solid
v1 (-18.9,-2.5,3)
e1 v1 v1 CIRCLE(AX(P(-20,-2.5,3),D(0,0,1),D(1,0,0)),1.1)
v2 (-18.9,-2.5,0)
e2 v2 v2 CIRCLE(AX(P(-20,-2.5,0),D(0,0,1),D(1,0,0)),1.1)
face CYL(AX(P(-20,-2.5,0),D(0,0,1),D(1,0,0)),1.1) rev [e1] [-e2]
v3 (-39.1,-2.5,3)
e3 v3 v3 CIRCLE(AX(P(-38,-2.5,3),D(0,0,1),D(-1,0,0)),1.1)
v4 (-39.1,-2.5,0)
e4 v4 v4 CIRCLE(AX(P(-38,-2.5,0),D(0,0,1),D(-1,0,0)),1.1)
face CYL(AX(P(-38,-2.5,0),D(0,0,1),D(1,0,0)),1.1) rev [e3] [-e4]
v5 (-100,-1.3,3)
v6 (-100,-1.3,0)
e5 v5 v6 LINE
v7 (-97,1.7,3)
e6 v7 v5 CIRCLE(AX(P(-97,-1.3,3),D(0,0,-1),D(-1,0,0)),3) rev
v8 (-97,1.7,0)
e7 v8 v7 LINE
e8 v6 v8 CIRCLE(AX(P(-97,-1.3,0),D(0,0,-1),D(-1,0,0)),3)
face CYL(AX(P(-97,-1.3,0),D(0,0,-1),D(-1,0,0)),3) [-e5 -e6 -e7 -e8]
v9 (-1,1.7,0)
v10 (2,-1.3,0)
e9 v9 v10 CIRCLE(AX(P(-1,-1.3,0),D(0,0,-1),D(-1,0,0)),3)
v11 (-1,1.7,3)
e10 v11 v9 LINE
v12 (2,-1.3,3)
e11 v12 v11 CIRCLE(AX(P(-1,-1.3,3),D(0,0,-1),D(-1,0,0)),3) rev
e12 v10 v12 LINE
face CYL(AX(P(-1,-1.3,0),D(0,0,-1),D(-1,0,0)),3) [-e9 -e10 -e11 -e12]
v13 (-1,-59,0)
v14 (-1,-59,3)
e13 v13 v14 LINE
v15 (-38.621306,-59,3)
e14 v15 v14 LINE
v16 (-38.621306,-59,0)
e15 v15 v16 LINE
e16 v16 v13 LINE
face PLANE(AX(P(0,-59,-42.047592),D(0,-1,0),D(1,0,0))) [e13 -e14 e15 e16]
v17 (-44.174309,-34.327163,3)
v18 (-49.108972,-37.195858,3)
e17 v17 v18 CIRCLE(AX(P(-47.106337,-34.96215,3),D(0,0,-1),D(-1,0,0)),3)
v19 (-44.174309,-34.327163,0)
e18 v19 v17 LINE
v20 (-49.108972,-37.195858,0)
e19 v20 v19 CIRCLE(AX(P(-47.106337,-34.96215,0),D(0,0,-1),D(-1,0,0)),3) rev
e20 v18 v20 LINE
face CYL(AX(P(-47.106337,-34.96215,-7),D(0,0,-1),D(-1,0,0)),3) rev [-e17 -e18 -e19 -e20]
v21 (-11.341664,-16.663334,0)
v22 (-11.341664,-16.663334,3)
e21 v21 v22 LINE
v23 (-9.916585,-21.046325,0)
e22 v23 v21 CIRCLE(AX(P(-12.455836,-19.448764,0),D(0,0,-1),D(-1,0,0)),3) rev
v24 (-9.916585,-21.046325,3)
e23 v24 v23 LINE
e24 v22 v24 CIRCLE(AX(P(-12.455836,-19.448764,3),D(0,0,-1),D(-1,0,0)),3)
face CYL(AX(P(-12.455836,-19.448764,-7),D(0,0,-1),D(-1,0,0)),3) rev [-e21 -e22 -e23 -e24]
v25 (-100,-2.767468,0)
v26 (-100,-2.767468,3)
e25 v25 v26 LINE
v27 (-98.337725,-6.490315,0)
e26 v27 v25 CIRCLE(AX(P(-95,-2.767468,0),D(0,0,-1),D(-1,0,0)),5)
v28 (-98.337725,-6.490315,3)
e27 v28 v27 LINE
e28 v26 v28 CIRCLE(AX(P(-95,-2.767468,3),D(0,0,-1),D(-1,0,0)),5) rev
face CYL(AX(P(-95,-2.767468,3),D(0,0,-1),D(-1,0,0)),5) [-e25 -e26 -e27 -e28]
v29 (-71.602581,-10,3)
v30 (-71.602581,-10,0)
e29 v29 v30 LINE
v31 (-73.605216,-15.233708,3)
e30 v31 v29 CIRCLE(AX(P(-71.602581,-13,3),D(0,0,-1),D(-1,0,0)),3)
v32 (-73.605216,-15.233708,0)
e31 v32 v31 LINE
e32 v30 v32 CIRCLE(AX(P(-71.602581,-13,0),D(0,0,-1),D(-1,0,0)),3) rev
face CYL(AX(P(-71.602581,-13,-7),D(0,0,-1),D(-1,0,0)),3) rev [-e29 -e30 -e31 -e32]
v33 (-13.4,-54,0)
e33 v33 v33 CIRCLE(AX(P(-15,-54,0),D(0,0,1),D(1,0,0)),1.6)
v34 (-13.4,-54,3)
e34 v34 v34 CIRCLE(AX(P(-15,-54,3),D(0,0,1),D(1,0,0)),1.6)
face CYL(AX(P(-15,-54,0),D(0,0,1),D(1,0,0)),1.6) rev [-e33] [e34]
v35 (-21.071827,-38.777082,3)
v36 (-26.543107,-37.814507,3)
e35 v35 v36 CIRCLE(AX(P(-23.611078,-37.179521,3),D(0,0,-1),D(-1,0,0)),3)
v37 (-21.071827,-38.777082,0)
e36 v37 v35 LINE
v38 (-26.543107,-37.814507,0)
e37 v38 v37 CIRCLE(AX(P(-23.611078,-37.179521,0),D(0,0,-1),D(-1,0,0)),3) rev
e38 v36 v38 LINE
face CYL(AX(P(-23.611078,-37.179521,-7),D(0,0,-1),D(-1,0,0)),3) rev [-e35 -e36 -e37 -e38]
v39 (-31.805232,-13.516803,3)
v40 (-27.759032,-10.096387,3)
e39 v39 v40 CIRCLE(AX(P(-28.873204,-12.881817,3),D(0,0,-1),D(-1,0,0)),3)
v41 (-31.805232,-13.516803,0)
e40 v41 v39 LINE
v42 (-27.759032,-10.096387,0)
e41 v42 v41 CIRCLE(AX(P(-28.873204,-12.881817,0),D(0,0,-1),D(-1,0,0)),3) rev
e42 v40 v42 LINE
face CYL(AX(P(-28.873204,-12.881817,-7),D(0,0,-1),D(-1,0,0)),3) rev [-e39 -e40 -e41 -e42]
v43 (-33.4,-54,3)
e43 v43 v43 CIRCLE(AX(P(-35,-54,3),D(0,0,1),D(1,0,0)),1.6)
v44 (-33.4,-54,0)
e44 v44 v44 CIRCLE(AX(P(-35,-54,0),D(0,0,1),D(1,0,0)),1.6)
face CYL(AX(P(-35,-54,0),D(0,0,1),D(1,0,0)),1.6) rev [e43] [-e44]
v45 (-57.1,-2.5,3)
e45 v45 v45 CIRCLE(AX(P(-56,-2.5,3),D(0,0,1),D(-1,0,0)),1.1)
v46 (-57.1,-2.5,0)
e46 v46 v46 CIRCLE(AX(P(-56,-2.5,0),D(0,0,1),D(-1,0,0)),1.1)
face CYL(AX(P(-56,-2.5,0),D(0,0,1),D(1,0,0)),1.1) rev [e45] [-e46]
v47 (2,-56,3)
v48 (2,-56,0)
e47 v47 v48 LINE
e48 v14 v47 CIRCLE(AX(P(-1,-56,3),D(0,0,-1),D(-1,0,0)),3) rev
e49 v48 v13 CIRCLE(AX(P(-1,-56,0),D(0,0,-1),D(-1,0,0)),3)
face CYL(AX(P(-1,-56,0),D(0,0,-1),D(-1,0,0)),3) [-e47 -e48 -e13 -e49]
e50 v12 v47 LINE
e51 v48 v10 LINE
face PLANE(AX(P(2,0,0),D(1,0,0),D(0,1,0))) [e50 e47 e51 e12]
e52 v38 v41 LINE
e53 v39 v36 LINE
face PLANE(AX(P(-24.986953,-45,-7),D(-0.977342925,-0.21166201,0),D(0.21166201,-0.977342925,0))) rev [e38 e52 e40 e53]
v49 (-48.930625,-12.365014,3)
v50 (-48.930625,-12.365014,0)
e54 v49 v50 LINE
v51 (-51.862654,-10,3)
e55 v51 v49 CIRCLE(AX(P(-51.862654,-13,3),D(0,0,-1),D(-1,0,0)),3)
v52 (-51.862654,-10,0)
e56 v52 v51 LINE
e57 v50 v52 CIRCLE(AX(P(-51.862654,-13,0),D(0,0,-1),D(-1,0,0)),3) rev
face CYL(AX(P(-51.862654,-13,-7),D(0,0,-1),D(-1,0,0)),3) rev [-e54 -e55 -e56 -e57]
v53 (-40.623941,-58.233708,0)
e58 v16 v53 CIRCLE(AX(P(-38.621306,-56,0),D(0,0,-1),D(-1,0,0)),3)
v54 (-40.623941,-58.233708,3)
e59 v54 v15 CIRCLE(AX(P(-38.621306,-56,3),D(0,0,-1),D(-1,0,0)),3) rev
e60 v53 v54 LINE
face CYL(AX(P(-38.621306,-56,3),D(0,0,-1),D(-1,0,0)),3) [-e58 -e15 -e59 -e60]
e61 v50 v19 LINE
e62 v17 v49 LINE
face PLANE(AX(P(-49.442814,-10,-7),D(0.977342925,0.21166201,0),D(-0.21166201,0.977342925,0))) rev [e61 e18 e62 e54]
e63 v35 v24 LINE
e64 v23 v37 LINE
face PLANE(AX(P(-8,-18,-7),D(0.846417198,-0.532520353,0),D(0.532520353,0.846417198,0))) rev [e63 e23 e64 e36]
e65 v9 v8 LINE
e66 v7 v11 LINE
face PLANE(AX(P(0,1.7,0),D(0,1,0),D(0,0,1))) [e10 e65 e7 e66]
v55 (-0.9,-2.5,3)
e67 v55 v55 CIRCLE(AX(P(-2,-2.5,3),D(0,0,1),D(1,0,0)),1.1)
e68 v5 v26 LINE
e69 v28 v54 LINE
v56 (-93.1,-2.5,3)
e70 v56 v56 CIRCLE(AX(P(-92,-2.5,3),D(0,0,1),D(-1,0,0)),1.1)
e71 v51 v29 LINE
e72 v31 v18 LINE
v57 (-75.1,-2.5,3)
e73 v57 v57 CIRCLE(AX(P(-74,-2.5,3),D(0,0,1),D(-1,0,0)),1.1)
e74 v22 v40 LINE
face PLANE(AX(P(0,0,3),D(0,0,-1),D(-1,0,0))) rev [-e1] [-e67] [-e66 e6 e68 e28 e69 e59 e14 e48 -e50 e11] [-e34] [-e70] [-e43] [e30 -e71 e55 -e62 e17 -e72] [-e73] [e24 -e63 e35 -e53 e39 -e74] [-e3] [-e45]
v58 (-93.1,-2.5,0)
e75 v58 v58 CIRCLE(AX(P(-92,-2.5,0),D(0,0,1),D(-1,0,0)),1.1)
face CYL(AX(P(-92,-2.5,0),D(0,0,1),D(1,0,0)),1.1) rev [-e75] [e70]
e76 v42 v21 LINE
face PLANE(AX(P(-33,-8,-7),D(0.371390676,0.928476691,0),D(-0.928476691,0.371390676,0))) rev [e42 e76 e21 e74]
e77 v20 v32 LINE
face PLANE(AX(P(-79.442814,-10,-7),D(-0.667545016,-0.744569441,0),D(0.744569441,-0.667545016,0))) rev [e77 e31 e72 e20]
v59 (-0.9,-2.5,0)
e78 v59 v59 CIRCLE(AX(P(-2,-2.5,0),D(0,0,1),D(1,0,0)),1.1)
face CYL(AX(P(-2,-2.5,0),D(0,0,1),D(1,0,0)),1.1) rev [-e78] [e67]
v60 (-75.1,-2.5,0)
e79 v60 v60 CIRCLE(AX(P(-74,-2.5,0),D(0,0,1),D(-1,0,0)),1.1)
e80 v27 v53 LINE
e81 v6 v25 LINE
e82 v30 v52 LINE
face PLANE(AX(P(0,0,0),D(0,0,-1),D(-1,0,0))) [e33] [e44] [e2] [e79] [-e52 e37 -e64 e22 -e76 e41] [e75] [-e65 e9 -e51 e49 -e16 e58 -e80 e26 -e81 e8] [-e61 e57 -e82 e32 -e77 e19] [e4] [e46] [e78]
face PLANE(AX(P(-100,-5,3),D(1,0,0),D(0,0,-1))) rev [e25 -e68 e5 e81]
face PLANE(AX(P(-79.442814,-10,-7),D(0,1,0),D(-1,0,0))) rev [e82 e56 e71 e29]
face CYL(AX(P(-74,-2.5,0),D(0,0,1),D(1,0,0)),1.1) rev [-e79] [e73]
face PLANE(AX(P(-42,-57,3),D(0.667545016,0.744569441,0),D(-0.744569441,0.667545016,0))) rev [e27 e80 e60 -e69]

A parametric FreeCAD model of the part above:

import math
import FreeCAD as App
import Part
import Sketcher

V = App.Vector
Q = App.Units.Quantity


def edges_at(feature, points):
    """Names of the edges that pass closest to the given points."""
    edges = feature.Shape.Edges
    near = lambda p: min(range(len(edges)), key=lambda i: edges[i].distToShape(Part.Vertex(*p))[0])
    return sorted({f"Edge{near(p) + 1}" for p in points})


def add_polygon(sketch, points):
    """Adds a closed chain of lines whose ends are joined by coincident constraints."""
    first, n = sketch.GeometryCount, len(points)
    for a, b in zip(points, points[1:] + points[:1]):
        sketch.addGeometry(Part.LineSegment(App.Vector(*a, 0), App.Vector(*b, 0)), False)
    for i in range(n):
        sketch.addConstraint(Sketcher.Constraint("Coincident", first + i, 2, first + (i + 1) % n, 1))

doc = App.newDocument("Part")
body = doc.addObject("PartDesign::Body", "Body")

sketch1 = doc.addObject("Sketcher::SketchObject", "Sketch")
body.addObject(sketch1)
sketch1.AttachmentSupport = (doc.XY_Plane, [""])
sketch1.MapMode = "FlatFace"
add_polygon(sketch1, [(0, -57), (0, 0), (-100, 0), (-100, -5), (-42, -57)])
sketch1.addConstraint(Sketcher.Constraint("Vertical", 0))
sketch1.addConstraint(Sketcher.Constraint("Horizontal", 1))
sketch1.addConstraint(Sketcher.Constraint("Vertical", 2))
sketch1.addConstraint(Sketcher.Constraint("Horizontal", 4))
sketch1.addConstraint(Sketcher.Constraint("Coincident", 0, 2, -1, 1))
sketch1.addConstraint(Sketcher.Constraint("DistanceX", 1, 2, 1, 1, Q("100 mm")))
sketch1.addConstraint(Sketcher.Constraint("DistanceX", 4, 1, 4, 2, Q("42 mm")))
sketch1.addConstraint(Sketcher.Constraint("DistanceY", 0, 1, 0, 2, Q("57 mm")))
sketch1.addConstraint(Sketcher.Constraint("DistanceY", 2, 2, 2, 1, Q("5 mm")))
pad1 = doc.addObject("PartDesign::Pad", "Pad")
body.addObject(pad1)
pad1.Profile = sketch1
pad1.Length = 3

sketch2 = doc.addObject("Sketcher::SketchObject", "Sketch001")
body.addObject(sketch2)
sketch2.AttachmentSupport = (doc.XY_Plane, [""])
sketch2.MapMode = "FlatFace"
sketch2.AttachmentOffset = App.Placement(V(0, 0, 3), App.Rotation())
sketch2.addGeometry(Part.Circle(V(-38, -45, 0), V(0, 0, 1), 1.1), False)
sketch2.addGeometry(Part.Circle(V(-38, -14.5, 0), V(0, 0, 1), 1.1), False)
sketch2.addGeometry(Part.Circle(V(-38, -2.5, 0), V(0, 0, 1), 1.1), False)
sketch2.addGeometry(Part.Circle(V(-56, -2.5, 0), V(0, 0, 1), 1.1), False)
sketch2.addGeometry(Part.Circle(V(-74, -2.5, 0), V(0, 0, 1), 1.1), False)
sketch2.addGeometry(Part.Circle(V(-92, -2.5, 0), V(0, 0, 1), 1.1), False)
sketch2.addGeometry(Part.Circle(V(-55.007782, -42.651735, 0), V(0, 0, 1), 1.025013), False)
sketch2.addGeometry(Part.Circle(V(-81.223203, -24.30094, 0), V(0, 0, 1), 1.025013), False)
sketch2.addGeometry(Part.Circle(V(-20, -2.5, 0), V(0, 0, 1), 1.1), False)
sketch2.addGeometry(Part.Circle(V(-2, -2.5, 0), V(0, 0, 1), 1.1), False)
sketch2.addGeometry(Part.Circle(V(-2, -14.5, 0), V(0, 0, 1), 1.1), False)
sketch2.addGeometry(Part.Circle(V(-2, -45, 0), V(0, 0, 1), 1.1), False)
sketch2.addGeometry(Part.Circle(V(-15, -54, 0), V(0, 0, 1), 1.6), False)
sketch2.addGeometry(Part.Circle(V(-35, -54, 0), V(0, 0, 1), 1.6), False)
sketch2.addConstraint(Sketcher.Constraint("Equal", 0, 1))
sketch2.addConstraint(Sketcher.Constraint("Equal", 1, 2))
sketch2.addConstraint(Sketcher.Constraint("Equal", 2, 3))
sketch2.addConstraint(Sketcher.Constraint("Equal", 3, 4))
sketch2.addConstraint(Sketcher.Constraint("Equal", 4, 5))
sketch2.addConstraint(Sketcher.Constraint("Equal", 6, 7))
sketch2.addConstraint(Sketcher.Constraint("Equal", 5, 8))
sketch2.addConstraint(Sketcher.Constraint("Equal", 8, 9))
sketch2.addConstraint(Sketcher.Constraint("Equal", 9, 10))
sketch2.addConstraint(Sketcher.Constraint("Equal", 10, 11))
sketch2.addConstraint(Sketcher.Constraint("Equal", 12, 13))
sketch2.addConstraint(Sketcher.Constraint("Horizontal", 2, 3, 3, 3))
sketch2.addConstraint(Sketcher.Constraint("Horizontal", 3, 3, 4, 3))
sketch2.addConstraint(Sketcher.Constraint("Horizontal", 4, 3, 5, 3))
sketch2.addConstraint(Sketcher.Constraint("Horizontal", 5, 3, 8, 3))
sketch2.addConstraint(Sketcher.Constraint("Horizontal", 8, 3, 9, 3))
sketch2.addConstraint(Sketcher.Constraint("Horizontal", 1, 3, 10, 3))
sketch2.addConstraint(Sketcher.Constraint("Horizontal", 0, 3, 11, 3))
sketch2.addConstraint(Sketcher.Constraint("Horizontal", 12, 3, 13, 3))
sketch2.addConstraint(Sketcher.Constraint("Vertical", 0, 3, 1, 3))
sketch2.addConstraint(Sketcher.Constraint("Vertical", 1, 3, 2, 3))
sketch2.addConstraint(Sketcher.Constraint("Vertical", 9, 3, 10, 3))
sketch2.addConstraint(Sketcher.Constraint("Vertical", 10, 3, 11, 3))
sketch2.addConstraint(Sketcher.Constraint("Diameter", 0, Q("2.2 mm")))
sketch2.addConstraint(Sketcher.Constraint("Diameter", 12, Q("3.2 mm")))
sketch2.addConstraint(Sketcher.Constraint("DistanceX", 0, 3, -1, 1, Q("38 mm")))
sketch2.addConstraint(Sketcher.Constraint("DistanceY", 0, 3, -1, 1, Q("45 mm")))
sketch2.addConstraint(Sketcher.Constraint("DistanceX", 3, 3, -1, 1, Q("56 mm")))
sketch2.addConstraint(Sketcher.Constraint("DistanceX", 4, 3, -1, 1, Q("74 mm")))
sketch2.addConstraint(Sketcher.Constraint("DistanceX", 5, 3, -1, 1, Q("92 mm")))
sketch2.addConstraint(Sketcher.Constraint("DistanceX", 8, 3, -1, 1, Q("20 mm")))
sketch2.addConstraint(Sketcher.Constraint("DistanceX", 9, 3, -1, 1, Q("2 mm")))
sketch2.addConstraint(Sketcher.Constraint("DistanceX", 12, 3, -1, 1, Q("15 mm")))
sketch2.addConstraint(Sketcher.Constraint("DistanceY", 12, 3, -1, 1, Q("54 mm")))
sketch2.addConstraint(Sketcher.Constraint("DistanceX", 13, 3, -1, 1, Q("35 mm")))
sketch2.addConstraint(Sketcher.Constraint("DistanceY", 1, 3, 2, 3, Q("12 mm")))
sketch2.addConstraint(Sketcher.Constraint("DistanceY", 1, 3, -1, 1, Q("14.5 mm")))
sketch2.addConstraint(Sketcher.Constraint("Diameter", 6, Q("2.050026 mm")))
sketch2.addConstraint(Sketcher.Constraint("DistanceX", 6, 3, -1, 1, Q("55.007782 mm")))
sketch2.addConstraint(Sketcher.Constraint("DistanceY", 7, 3, -1, 1, Q("24.30094 mm")))
sketch2.addConstraint(Sketcher.Constraint("DistanceX", 7, 3, 6, 3, Q("26.215421 mm")))
sketch2.addConstraint(Sketcher.Constraint("DistanceY", 6, 3, -1, 1, Q("42.651735 mm")))
pocket1 = doc.addObject("PartDesign::Pocket", "Pocket")
body.addObject(pocket1)
pocket1.Profile = sketch2
pocket1.Type = "ThroughAll"
doc.recompute()

fillet = doc.addObject("PartDesign::Fillet", "Fillet")
body.addObject(fillet)
fillet.Base = (pocket1, edges_at(pocket1, [(-100, -5, 1.5)]))
fillet.Radius = 5

sketch3 = doc.addObject("Sketcher::SketchObject", "Sketch002")
body.addObject(sketch3)
sketch3.AttachmentSupport = (doc.XY_Plane, [""])
sketch3.MapMode = "FlatFace"
sketch3.AttachmentOffset = App.Placement(V(0, 0, 3), App.Rotation())
sketch3.addGeometry(Part.LineSegment(V(-100, 0, 0), V(-100, -2.767468, 0)), False)
sketch3.addGeometry(Part.ArcOfCircle(Part.Circle(V(-95, -2.767468, 0), V(0, 0, 1), 5), math.radians(-180), math.radians(-131.87787)), False)
sketch3.addGeometry(Part.LineSegment(V(-98.337725, -6.490315, 0), V(-42, -57, 0)), False)
sketch3.addGeometry(Part.LineSegment(V(-42, -57, 0), V(0, -57, 0)), False)
sketch3.addGeometry(Part.LineSegment(V(0, -57, 0), V(0, 0, 0)), False)
sketch3.addGeometry(Part.LineSegment(V(0, 0, 0), V(-100, 0, 0)), False)
sketch3.addGeometry(Part.Circle(V(-35, -54, 0), V(0, 0, 1), 1.6), False)
sketch3.addGeometry(Part.Circle(V(-15, -54, 0), V(0, 0, 1), 1.6), False)
sketch3.addGeometry(Part.Circle(V(-92, -2.5, 0), V(0, 0, 1), 1.1), False)
sketch3.addGeometry(Part.Circle(V(-74, -2.5, 0), V(0, 0, 1), 1.1), False)
sketch3.addGeometry(Part.Circle(V(-56, -2.5, 0), V(0, 0, 1), 1.1), False)
sketch3.addGeometry(Part.Circle(V(-38, -2.5, 0), V(0, 0, 1), 1.1), False)
sketch3.addGeometry(Part.Circle(V(-20, -2.5, 0), V(0, 0, 1), 1.1), False)
sketch3.addGeometry(Part.Circle(V(-2, -2.5, 0), V(0, 0, 1), 1.1), False)
sketch3.addConstraint(Sketcher.Constraint("Tangent", 0, 2, 1, 1))
sketch3.addConstraint(Sketcher.Constraint("Tangent", 1, 2, 2, 1))
sketch3.addConstraint(Sketcher.Constraint("Coincident", 2, 2, 3, 1))
sketch3.addConstraint(Sketcher.Constraint("Coincident", 3, 2, 4, 1))
sketch3.addConstraint(Sketcher.Constraint("Coincident", 4, 2, 5, 1))
sketch3.addConstraint(Sketcher.Constraint("Coincident", 5, 2, 0, 1))
sketch3.addConstraint(Sketcher.Constraint("Vertical", 0))
sketch3.addConstraint(Sketcher.Constraint("Horizontal", 3))
sketch3.addConstraint(Sketcher.Constraint("Vertical", 4))
sketch3.addConstraint(Sketcher.Constraint("Horizontal", 5))
sketch3.addConstraint(Sketcher.Constraint("Coincident", 4, 2, -1, 1))
sketch3.addConstraint(Sketcher.Constraint("Equal", 6, 7))
sketch3.addConstraint(Sketcher.Constraint("Equal", 8, 9))
sketch3.addConstraint(Sketcher.Constraint("Equal", 9, 10))
sketch3.addConstraint(Sketcher.Constraint("Equal", 10, 11))
sketch3.addConstraint(Sketcher.Constraint("Equal", 11, 12))
sketch3.addConstraint(Sketcher.Constraint("Equal", 12, 13))
sketch3.addConstraint(Sketcher.Constraint("Horizontal", 6, 3, 7, 3))
sketch3.addConstraint(Sketcher.Constraint("Horizontal", 8, 3, 9, 3))
sketch3.addConstraint(Sketcher.Constraint("Horizontal", 9, 3, 10, 3))
sketch3.addConstraint(Sketcher.Constraint("Horizontal", 10, 3, 11, 3))
sketch3.addConstraint(Sketcher.Constraint("Horizontal", 11, 3, 12, 3))
sketch3.addConstraint(Sketcher.Constraint("Horizontal", 12, 3, 13, 3))
sketch3.addConstraint(Sketcher.Constraint("Radius", 1, Q("5 mm")))
sketch3.addConstraint(Sketcher.Constraint("Diameter", 6, Q("3.2 mm")))
sketch3.addConstraint(Sketcher.Constraint("Diameter", 8, Q("2.2 mm")))
sketch3.addConstraint(Sketcher.Constraint("DistanceX", 3, 1, 3, 2, Q("42 mm")))
sketch3.addConstraint(Sketcher.Constraint("DistanceX", 5, 2, 5, 1, Q("100 mm")))
sketch3.addConstraint(Sketcher.Constraint("DistanceY", 4, 1, 4, 2, Q("57 mm")))
sketch3.addConstraint(Sketcher.Constraint("DistanceX", 6, 3, -1, 1, Q("35 mm")))
sketch3.addConstraint(Sketcher.Constraint("DistanceY", 6, 3, -1, 1, Q("54 mm")))
sketch3.addConstraint(Sketcher.Constraint("DistanceX", 7, 3, -1, 1, Q("15 mm")))
sketch3.addConstraint(Sketcher.Constraint("DistanceX", 8, 3, -1, 1, Q("92 mm")))
sketch3.addConstraint(Sketcher.Constraint("DistanceX", 9, 3, -1, 1, Q("74 mm")))
sketch3.addConstraint(Sketcher.Constraint("DistanceX", 10, 3, -1, 1, Q("56 mm")))
sketch3.addConstraint(Sketcher.Constraint("DistanceX", 11, 3, -1, 1, Q("38 mm")))
sketch3.addConstraint(Sketcher.Constraint("DistanceX", 12, 3, -1, 1, Q("20 mm")))
sketch3.addConstraint(Sketcher.Constraint("DistanceX", 13, 3, -1, 1, Q("2 mm")))
sketch3.addConstraint(Sketcher.Constraint("DistanceY", 8, 3, -1, 1, Q("2.5 mm")))
sketch3.addConstraint(Sketcher.Constraint("DistanceY", 0, 2, 0, 1, Q("2.767468 mm")))
pad2 = doc.addObject("PartDesign::Pad", "Pad001")
body.addObject(pad2)
pad2.Profile = sketch3
pad2.Length = 3
pad2.Reversed = True

sketch4 = doc.addObject("Sketcher::SketchObject", "Sketch003")
body.addObject(sketch4)
sketch4.AttachmentSupport = (doc.XY_Plane, [""])
sketch4.MapMode = "FlatFace"
sketch4.AttachmentOffset = App.Placement(V(0, 0, 3), App.Rotation())
add_polygon(sketch4, [(-79.442814, -10), (-42.214342, -43.377251), (-49.442814, -10)])
add_polygon(sketch4, [(-8, -18), (-33, -8), (-24.986953, -45)])
sketch4.addConstraint(Sketcher.Constraint("Horizontal", 2))
sketch4.addConstraint(Sketcher.Constraint("Parallel", 1, 4))
sketch4.addConstraint(Sketcher.Constraint("DistanceX", 2, 2, 2, 1, Q("30 mm")))
sketch4.addConstraint(Sketcher.Constraint("Distance", 0, Q("50 mm")))
sketch4.addConstraint(Sketcher.Constraint("DistanceY", 1, 2, -1, 1, Q("10 mm")))
sketch4.addConstraint(Sketcher.Constraint("DistanceX", 3, 2, -1, 1, Q("33 mm")))
sketch4.addConstraint(Sketcher.Constraint("DistanceY", 3, 2, -1, 1, Q("8 mm")))
sketch4.addConstraint(Sketcher.Constraint("DistanceY", 4, 2, -1, 1, Q("45 mm")))
sketch4.addConstraint(Sketcher.Constraint("DistanceX", 5, 2, -1, 1, Q("8 mm")))
sketch4.addConstraint(Sketcher.Constraint("DistanceY", 5, 2, -1, 1, Q("18 mm")))
sketch4.addConstraint(Sketcher.Constraint("DistanceX", 0, 2, -1, 1, Q("42.214342 mm")))
sketch4.addConstraint(Sketcher.Constraint("DistanceY", 0, 2, -1, 1, Q("43.377251 mm")))
pocket2 = doc.addObject("PartDesign::Pocket", "Pocket001")
body.addObject(pocket2)
pocket2.Profile = sketch4
pocket2.Length = 10
doc.recompute()

fillet2 = doc.addObject("PartDesign::Fillet", "Fillet001")
body.addObject(fillet2)
fillet2.Base = (pocket2, edges_at(pocket2, [
    (-79.443, -10, 1.5),
    (-49.443, -10, 1.5),
    (-42.214, -43.377, 1.5),
    (-24.987, -45, 1.5),
    (-33, -8, 1.5),
    (-8, -18, 1.5),
]))
fillet2.Radius = 3

sketch5 = doc.addObject("Sketcher::SketchObject", "Sketch004")
body.addObject(sketch5)
sketch5.AttachmentSupport = (doc.XY_Plane, [""])
sketch5.MapMode = "FlatFace"
sketch5.AttachmentOffset = App.Placement(V(0, 0, 3), App.Rotation())
add_polygon(sketch5, [(0, -57), (-42, -57), (-39.769231, -59), (0, -59)])
sketch5.addConstraint(Sketcher.Constraint("Horizontal", 0))
sketch5.addConstraint(Sketcher.Constraint("Horizontal", 2))
sketch5.addConstraint(Sketcher.Constraint("Vertical", 3))
sketch5.addConstraint(Sketcher.Constraint("PointOnObject", 2, 2, -2))
sketch5.addConstraint(Sketcher.Constraint("DistanceX", 0, 2, 0, 1, Q("42 mm")))
sketch5.addConstraint(Sketcher.Constraint("DistanceY", 3, 1, 3, 2, Q("2 mm")))
sketch5.addConstraint(Sketcher.Constraint("DistanceY", 0, 2, -1, 1, Q("57 mm")))
sketch5.addConstraint(Sketcher.Constraint("DistanceX", 2, 1, 2, 2, Q("39.769231 mm")))
pad3 = doc.addObject("PartDesign::Pad", "Pad002")
body.addObject(pad3)
pad3.Profile = sketch5
pad3.Length = 3
pad3.Reversed = True

sketch6 = doc.addObject("Sketcher::SketchObject", "Sketch005")
body.addObject(sketch6)
sketch6.AttachmentSupport = (doc.YZ_Plane, [""])
sketch6.MapMode = "FlatFace"
add_polygon(sketch6, [(0, 3), (-59, 3), (-59, 0), (0, 0)])
sketch6.addConstraint(Sketcher.Constraint("Horizontal", 0))
sketch6.addConstraint(Sketcher.Constraint("Vertical", 1))
sketch6.addConstraint(Sketcher.Constraint("Horizontal", 2))
sketch6.addConstraint(Sketcher.Constraint("Vertical", 3))
sketch6.addConstraint(Sketcher.Constraint("Coincident", 2, 2, -1, 1))
sketch6.addConstraint(Sketcher.Constraint("DistanceX", 0, 2, 0, 1, Q("59 mm")))
sketch6.addConstraint(Sketcher.Constraint("DistanceY", 1, 2, 1, 1, Q("3 mm")))
pad4 = doc.addObject("PartDesign::Pad", "Pad003")
body.addObject(pad4)
pad4.Profile = sketch6
pad4.Length = 2

sketch7 = doc.addObject("Sketcher::SketchObject", "Sketch006")
body.addObject(sketch7)
sketch7.AttachmentSupport = (doc.XZ_Plane, [""])
sketch7.MapMode = "FlatFace"
add_polygon(sketch7, [(-100, 0), (-100, 3), (2, 3), (2, 0)])
sketch7.addConstraint(Sketcher.Constraint("Vertical", 0))
sketch7.addConstraint(Sketcher.Constraint("Horizontal", 1))
sketch7.addConstraint(Sketcher.Constraint("Vertical", 2))
sketch7.addConstraint(Sketcher.Constraint("Horizontal", 3))
sketch7.addConstraint(Sketcher.Constraint("PointOnObject", 2, 2, -1))
sketch7.addConstraint(Sketcher.Constraint("DistanceX", 1, 1, 1, 2, Q("102 mm")))
sketch7.addConstraint(Sketcher.Constraint("DistanceY", 0, 1, 0, 2, Q("3 mm")))
sketch7.addConstraint(Sketcher.Constraint("DistanceX", 0, 2, -1, 1, Q("100 mm")))
pad5 = doc.addObject("PartDesign::Pad", "Pad004")
body.addObject(pad5)
pad5.Profile = sketch7
pad5.Length = 1.7
pad5.Reversed = True
doc.recompute()

fillet3 = doc.addObject("PartDesign::Fillet", "Fillet002")
body.addObject(fillet3)
fillet3.Base = (pad5, edges_at(pad5, [
    (-39.769, -59, 1.5),
    (2, -59, 1.5),
    (2, 1.7, 1.5),
    (-100, 1.7, 1.5),
]))
fillet3.Radius = 3

doc.recompute()
